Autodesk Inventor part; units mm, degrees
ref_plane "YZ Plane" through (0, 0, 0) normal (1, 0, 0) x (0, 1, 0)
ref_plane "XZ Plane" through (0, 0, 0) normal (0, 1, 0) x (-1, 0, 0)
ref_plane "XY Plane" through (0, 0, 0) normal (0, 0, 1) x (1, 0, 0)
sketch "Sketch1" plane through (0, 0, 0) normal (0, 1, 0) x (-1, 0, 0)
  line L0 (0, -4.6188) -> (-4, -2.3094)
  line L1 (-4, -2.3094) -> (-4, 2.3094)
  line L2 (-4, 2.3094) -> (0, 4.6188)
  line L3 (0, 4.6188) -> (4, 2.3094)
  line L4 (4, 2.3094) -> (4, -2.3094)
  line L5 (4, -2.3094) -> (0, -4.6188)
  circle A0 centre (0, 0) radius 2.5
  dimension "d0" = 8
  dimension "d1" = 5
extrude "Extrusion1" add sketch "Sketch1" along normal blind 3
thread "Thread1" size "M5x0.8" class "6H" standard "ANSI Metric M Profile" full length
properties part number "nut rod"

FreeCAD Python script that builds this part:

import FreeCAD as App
import Part
import Sketcher
Q = App.Units.Quantity


def add_polygon(sketch, points):
    """Adds a closed chain of lines whose ends are joined by coincident constraints."""
    first, n = sketch.GeometryCount, len(points)
    for a, b in zip(points, points[1:] + points[:1]):
        sketch.addGeometry(Part.LineSegment(App.Vector(*a, 0), App.Vector(*b, 0)), False)
    for i in range(n):
        sketch.addConstraint(Sketcher.Constraint("Coincident", first + i, 2, first + (i + 1) % n, 1))

doc = App.newDocument("Part")
body = doc.addObject("PartDesign::Body", "Body")

# Sketch on XZ plane
sketch1 = body.newObject("Sketcher::SketchObject", "Sketch")
sketch1.AttachmentSupport = (doc.getObject("XZ_Plane"), [""])
sketch1.MapMode = "FlatFace"
add_polygon(sketch1, [(4, -2.3), (0, -4.6), (-4, -2.3), (-4, 2.3), (0, 4.6), (4, 2.3)])  # lines 0-5
sketch1.addGeometry(Part.Circle(App.Vector(0, 0, 0), App.Vector(0, 0, 1), 2.5), False)  # 6
sketch1.addConstraint([
    Sketcher.Constraint("Vertical", 2),
    Sketcher.Constraint("Vertical", 5),
    Sketcher.Constraint("Coincident", 6, 3, -1, 1),
    Sketcher.Constraint("Symmetric", 0, 2, 3, 2, -1, 1),
    Sketcher.Constraint("Symmetric", 1, 2, 4, 2, -1, 1),
    Sketcher.Constraint("PointOnObject", 0, 2, -2),
    Sketcher.Constraint("Parallel", 0, 3),
    Sketcher.Constraint("Horizontal", 2, 2, 4, 2),
    Sketcher.Constraint("Diameter", 6, Q("5 mm")),
    Sketcher.Constraint("DistanceX", 2, 2, 4, 2, Q("8 mm")),
    Sketcher.Constraint("Angle", 0, Q("-150 deg")),
    Sketcher.Constraint("DistanceY", 2, 1, 2, 2, Q("4.6188 mm")),
])
pad1 = body.newObject("PartDesign::Pad", "Pad")
pad1.Profile = sketch1
pad1.Length = 3
pad1.Reversed = True

doc.recompute()
